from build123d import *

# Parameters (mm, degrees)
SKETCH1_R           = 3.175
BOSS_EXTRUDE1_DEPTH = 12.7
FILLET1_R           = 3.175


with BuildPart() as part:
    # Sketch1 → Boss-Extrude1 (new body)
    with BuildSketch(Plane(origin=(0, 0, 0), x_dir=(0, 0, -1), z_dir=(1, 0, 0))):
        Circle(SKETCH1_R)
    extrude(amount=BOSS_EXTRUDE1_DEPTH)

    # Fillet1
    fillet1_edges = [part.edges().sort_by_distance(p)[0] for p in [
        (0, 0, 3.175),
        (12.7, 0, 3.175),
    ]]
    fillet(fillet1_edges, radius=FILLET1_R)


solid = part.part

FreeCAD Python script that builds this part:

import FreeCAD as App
import Part
import Sketcher
Q = App.Units.Quantity


def edges_at(feature, points):
    """Names of the edges that pass closest to the given points."""
    edges = feature.Shape.Edges
    near = lambda p: min(range(len(edges)), key=lambda i: edges[i].distToShape(Part.Vertex(*p))[0])
    return sorted({f"Edge{near(p) + 1}" for p in points})

doc = App.newDocument("Part")
body = doc.addObject("PartDesign::Body", "Body")

sketch1 = body.newObject("Sketcher::SketchObject", "Sketch")
sketch1.AttachmentSupport = (doc.getObject("YZ_Plane"), [""])
sketch1.MapMode = "FlatFace"
sketch1.addGeometry(Part.Circle(App.Vector(0, 0, 0), App.Vector(0, 0, 1), 3.2), False)
sketch1.addConstraint([
    Sketcher.Constraint("Coincident", 0, 3, -1, 1),
    Sketcher.Constraint("Diameter", 0, Q("0.25 in")),
])
pad1 = body.newObject("PartDesign::Pad", "Pad")
pad1.Profile = sketch1
pad1.Length = Q("0.5 in")
doc.recompute()

fillet = body.newObject("PartDesign::Fillet", "Fillet")
fillet.Base = (pad1, edges_at(pad1, [(0, 0, 3.175), (12.7, 0, 3.175)]))
fillet.Radius = Q("0.125 in")

doc.recompute()
